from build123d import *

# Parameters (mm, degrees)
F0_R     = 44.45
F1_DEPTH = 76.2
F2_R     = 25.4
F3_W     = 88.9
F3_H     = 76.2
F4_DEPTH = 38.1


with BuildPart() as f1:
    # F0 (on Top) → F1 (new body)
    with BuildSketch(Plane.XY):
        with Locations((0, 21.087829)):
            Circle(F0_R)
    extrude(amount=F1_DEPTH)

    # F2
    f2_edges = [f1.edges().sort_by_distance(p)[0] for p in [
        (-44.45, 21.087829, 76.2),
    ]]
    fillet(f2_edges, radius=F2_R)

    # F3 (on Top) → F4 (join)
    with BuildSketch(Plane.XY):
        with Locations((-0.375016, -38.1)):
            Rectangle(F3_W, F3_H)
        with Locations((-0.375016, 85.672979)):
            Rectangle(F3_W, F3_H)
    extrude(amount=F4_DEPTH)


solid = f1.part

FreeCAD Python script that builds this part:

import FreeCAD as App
import Part
import Sketcher
Q = App.Units.Quantity


def edges_at(feature, points):
    """Names of the edges that pass closest to the given points."""
    edges = feature.Shape.Edges
    near = lambda p: min(range(len(edges)), key=lambda i: edges[i].distToShape(Part.Vertex(*p))[0])
    return sorted({f"Edge{near(p) + 1}" for p in points})


def add_polygon(sketch, points):
    """Adds a closed chain of lines whose ends are joined by coincident constraints."""
    first, n = sketch.GeometryCount, len(points)
    for a, b in zip(points, points[1:] + points[:1]):
        sketch.addGeometry(Part.LineSegment(App.Vector(*a, 0), App.Vector(*b, 0)), False)
    for i in range(n):
        sketch.addConstraint(Sketcher.Constraint("Coincident", first + i, 2, first + (i + 1) % n, 1))

doc = App.newDocument("Part")
body = doc.addObject("PartDesign::Body", "Body")

# Sketch on XY plane
sketch1 = doc.addObject("Sketcher::SketchObject", "Sketch")
body.addObject(sketch1)
sketch1.AttachmentSupport = (doc.XY_Plane, [""])
sketch1.MapMode = "FlatFace"
sketch1.addGeometry(Part.Circle(App.Vector(0, 21, 0), App.Vector(0, 0, 1), 44), False)
sketch1.addConstraint([
    Sketcher.Constraint("PointOnObject", 0, 3, -2),
    Sketcher.Constraint("Diameter", 0, Q("3.5 in")),
    Sketcher.Constraint("DistanceY", -1, 1, 0, 3, 21.087829),
])
pad1 = doc.addObject("PartDesign::Pad", "Pad")
body.addObject(pad1)
pad1.Profile = sketch1
pad1.Length = Q("3 in")
doc.recompute()

fillet = doc.addObject("PartDesign::Fillet", "Fillet")
body.addObject(fillet)
fillet.Base = (pad1, edges_at(pad1, [(-44.45, 21.088, 76.2)]))
fillet.Radius = Q("1 in")

# Sketch on XY plane
sketch2 = doc.addObject("Sketcher::SketchObject", "Sketch001")
body.addObject(sketch2)
sketch2.AttachmentSupport = (doc.XY_Plane, [""])
sketch2.MapMode = "FlatFace"
add_polygon(sketch2, [(-45, 0), (-45, -76), (44, -76), (44, 0)])  # lines 0-3
add_polygon(sketch2, [(-45, 124), (-45, 48), (44, 48), (44, 124)])  # lines 4-7
sketch2.addConstraint([
    Sketcher.Constraint("Vertical", 0),
    Sketcher.Constraint("Horizontal", 1),
    Sketcher.Constraint("Vertical", 2),
    Sketcher.Constraint("Horizontal", 3),
    Sketcher.Constraint("Vertical", 4),
    Sketcher.Constraint("Horizontal", 5),
    Sketcher.Constraint("Vertical", 6),
    Sketcher.Constraint("Horizontal", 7),
    Sketcher.Constraint("PointOnObject", 2, 2, -1),
    Sketcher.Constraint("Vertical", 3, 2, 4, 2),
    Sketcher.Constraint("Vertical", 2, 2, 5, 2),
    Sketcher.Constraint("Equal", 2, 4),
    Sketcher.Constraint("DistanceY", 0, 2, 0, 1, Q("3 in")),
    Sketcher.Constraint("DistanceX", 1, 1, 1, 2, Q("3.5 in")),
    Sketcher.Constraint("DistanceY", -1, 1, 4, 2, 47.572979),
    Sketcher.Constraint("DistanceX", 0, 2, -1, 1, 44.825016),
])
pad2 = doc.addObject("PartDesign::Pad", "Pad001")
body.addObject(pad2)
pad2.Profile = sketch2
pad2.Length = Q("1.5 in")

doc.recompute()
